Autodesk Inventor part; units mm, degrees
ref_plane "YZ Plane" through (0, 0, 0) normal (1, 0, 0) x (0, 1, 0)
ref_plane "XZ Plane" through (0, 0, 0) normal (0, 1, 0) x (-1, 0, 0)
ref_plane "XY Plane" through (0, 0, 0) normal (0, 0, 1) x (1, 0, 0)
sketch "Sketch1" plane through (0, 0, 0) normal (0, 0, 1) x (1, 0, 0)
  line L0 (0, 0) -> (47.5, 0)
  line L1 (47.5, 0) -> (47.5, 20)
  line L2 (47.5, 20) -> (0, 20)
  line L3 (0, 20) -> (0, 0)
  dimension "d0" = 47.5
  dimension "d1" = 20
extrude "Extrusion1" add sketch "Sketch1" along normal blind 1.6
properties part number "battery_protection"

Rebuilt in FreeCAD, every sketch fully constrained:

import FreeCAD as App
import Part
import Sketcher
from FreeCAD import Vector
Q = App.Units.Quantity

doc = App.newDocument("Part")
body = doc.addObject("PartDesign::Body", "Body")

sketch1 = body.newObject("Sketcher::SketchObject", "Sketch")
sketch1.AttachmentSupport = (doc.getObject("XY_Plane"), [""])
sketch1.MapMode = "FlatFace"
sketch1.addGeometry(Part.LineSegment(Vector(0, 20, 0), Vector(0, 0, 0)), False)
sketch1.addGeometry(Part.LineSegment(Vector(0, 0, 0), Vector(48, 0, 0)), False)
sketch1.addGeometry(Part.LineSegment(Vector(48, 0, 0), Vector(48, 20, 0)), False)
sketch1.addGeometry(Part.LineSegment(Vector(48, 20, 0), Vector(0, 20, 0)), False)
sketch1.addConstraint(Sketcher.Constraint("Coincident", 0, 2, 1, 1))
sketch1.addConstraint(Sketcher.Constraint("Coincident", 1, 2, 2, 1))
sketch1.addConstraint(Sketcher.Constraint("Coincident", 2, 2, 3, 1))
sketch1.addConstraint(Sketcher.Constraint("Coincident", 3, 2, 0, 1))
sketch1.addConstraint(Sketcher.Constraint("Vertical", 0))
sketch1.addConstraint(Sketcher.Constraint("Horizontal", 1))
sketch1.addConstraint(Sketcher.Constraint("Vertical", 2))
sketch1.addConstraint(Sketcher.Constraint("Horizontal", 3))
sketch1.addConstraint(Sketcher.Constraint("Coincident", 0, 2, -1, 1))
sketch1.addConstraint(Sketcher.Constraint("DistanceY", 0, 2, 0, 1, Q("20 mm")))
sketch1.addConstraint(Sketcher.Constraint("DistanceX", 1, 1, 1, 2, Q("47.5 mm")))
pad1 = body.newObject("PartDesign::Pad", "Pad")
pad1.Profile = sketch1
pad1.Length = 1.6

doc.recompute()
